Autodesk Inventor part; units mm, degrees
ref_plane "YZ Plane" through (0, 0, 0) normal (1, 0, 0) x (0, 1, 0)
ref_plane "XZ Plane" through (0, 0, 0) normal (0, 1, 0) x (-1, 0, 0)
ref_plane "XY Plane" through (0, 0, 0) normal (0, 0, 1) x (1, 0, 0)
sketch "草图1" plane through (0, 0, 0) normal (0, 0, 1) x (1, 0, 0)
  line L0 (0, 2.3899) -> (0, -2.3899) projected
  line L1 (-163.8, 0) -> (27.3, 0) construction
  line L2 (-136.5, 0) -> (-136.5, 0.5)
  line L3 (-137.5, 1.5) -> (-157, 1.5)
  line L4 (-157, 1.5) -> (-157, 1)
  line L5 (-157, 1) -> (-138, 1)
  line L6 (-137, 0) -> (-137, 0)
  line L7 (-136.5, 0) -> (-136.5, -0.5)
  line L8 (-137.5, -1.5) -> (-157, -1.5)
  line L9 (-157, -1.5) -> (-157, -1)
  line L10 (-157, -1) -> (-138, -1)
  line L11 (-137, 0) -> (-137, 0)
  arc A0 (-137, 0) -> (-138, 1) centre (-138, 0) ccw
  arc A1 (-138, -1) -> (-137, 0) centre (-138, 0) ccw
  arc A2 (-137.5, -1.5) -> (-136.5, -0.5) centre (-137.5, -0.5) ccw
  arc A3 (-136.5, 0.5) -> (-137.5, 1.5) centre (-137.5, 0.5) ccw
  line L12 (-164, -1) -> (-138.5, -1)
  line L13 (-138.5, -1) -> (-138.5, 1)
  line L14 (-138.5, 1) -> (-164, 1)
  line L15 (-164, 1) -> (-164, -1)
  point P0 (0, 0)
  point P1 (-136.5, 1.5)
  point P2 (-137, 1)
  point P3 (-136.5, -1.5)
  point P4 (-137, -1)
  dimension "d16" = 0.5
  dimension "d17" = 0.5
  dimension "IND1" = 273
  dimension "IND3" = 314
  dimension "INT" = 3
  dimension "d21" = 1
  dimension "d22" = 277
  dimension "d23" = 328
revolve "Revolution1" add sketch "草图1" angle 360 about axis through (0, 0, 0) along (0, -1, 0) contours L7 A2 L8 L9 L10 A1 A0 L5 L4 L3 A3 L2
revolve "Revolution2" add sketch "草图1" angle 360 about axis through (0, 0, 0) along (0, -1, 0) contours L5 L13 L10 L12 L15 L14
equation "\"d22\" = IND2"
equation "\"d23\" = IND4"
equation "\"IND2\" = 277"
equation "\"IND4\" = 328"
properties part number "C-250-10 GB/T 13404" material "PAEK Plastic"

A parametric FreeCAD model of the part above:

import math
import FreeCAD as App
import Part
import Sketcher
from FreeCAD import Vector
Q = App.Units.Quantity

doc = App.newDocument("Part")
body = doc.addObject("PartDesign::Body", "Body")

# Sketch on XY plane
sketch1 = doc.addObject("Sketcher::SketchObject", "Sketch")
body.addObject(sketch1)
sketch1.AttachmentSupport = (doc.XY_Plane, [""])
sketch1.MapMode = "FlatFace"
sketch1.addGeometry([
    Part.LineSegment(Vector(-136.5, -0.5, 0), Vector(-136.5, 0.5, 0)),  # 0
    Part.ArcOfCircle(Part.Circle(Vector(-137.5, 0.5, 0), Vector(0, 0, 1), 1), math.radians(0), math.radians(90)),  # 1
    Part.LineSegment(Vector(-137.5, 1.5, 0), Vector(-157, 1.5, 0)),  # 2
    Part.LineSegment(Vector(-157, 1.5, 0), Vector(-157, 1, 0)),  # 3
    Part.LineSegment(Vector(-157, 1, 0), Vector(-138, 1, 0)),  # 4
    Part.ArcOfCircle(Part.Circle(Vector(-138, 0, 0), Vector(0, 0, 1), 1), math.radians(-90), math.radians(90)),  # 5
    Part.LineSegment(Vector(-138, -1, 0), Vector(-157, -1, 0)),  # 6
    Part.LineSegment(Vector(-157, -1, 0), Vector(-157, -1.5, 0)),  # 7
    Part.LineSegment(Vector(-157, -1.5, 0), Vector(-137.5, -1.5, 0)),  # 8
    Part.ArcOfCircle(Part.Circle(Vector(-137.5, -0.5, 0), Vector(0, 0, 1), 1), math.radians(-90), math.radians(0)),  # 9
], False)
sketch1.addConstraint([
    Sketcher.Constraint("Tangent", 0, 2, 1, 1),
    Sketcher.Constraint("Tangent", 1, 2, 2, 1),
    Sketcher.Constraint("Coincident", 2, 2, 3, 1),
    Sketcher.Constraint("Coincident", 3, 2, 4, 1),
    Sketcher.Constraint("Tangent", 4, 2, 5, 2),
    Sketcher.Constraint("Tangent", 5, 1, 6, 1),
    Sketcher.Constraint("Coincident", 6, 2, 7, 1),
    Sketcher.Constraint("Coincident", 7, 2, 8, 1),
    Sketcher.Constraint("Tangent", 8, 2, 9, 1),
    Sketcher.Constraint("Tangent", 9, 2, 0, 1),
    Sketcher.Constraint("Vertical", 0),
    Sketcher.Constraint("Horizontal", 2),
    Sketcher.Constraint("Vertical", 3),
    Sketcher.Constraint("Horizontal", 4),
    Sketcher.Constraint("Horizontal", 6),
    Sketcher.Constraint("Vertical", 7),
    Sketcher.Constraint("Horizontal", 8),
    Sketcher.Constraint("Equal", 1, 5),
    Sketcher.Constraint("Equal", 5, 9),
    Sketcher.Constraint("Symmetric", 3, 2, 6, 2, -1),
    Sketcher.Constraint("Equal", 3, 7),
    Sketcher.Constraint("Radius", 1, Q("1 mm")),
    Sketcher.Constraint("DistanceY", 0, 1, 0, 2, Q("1 mm")),
    Sketcher.Constraint("DistanceX", 5, 3, 1, 3, Q("0.5 mm")),
    Sketcher.Constraint("DistanceX", 4, 1, 4, 2, Q("19 mm")),
    Sketcher.Constraint("DistanceX", 5, 3, -1, 1, Q("138 mm")),
])
revolution = doc.addObject("PartDesign::Revolution", "Revolution")
body.addObject(revolution)
revolution.Profile = sketch1
revolution.ReferenceAxis = (sketch1, ["V_Axis"])
revolution.Angle = 360

# Sketch on XY plane
sketch2 = doc.addObject("Sketcher::SketchObject", "Sketch001")
body.addObject(sketch2)
sketch2.AttachmentSupport = (doc.XY_Plane, [""])
sketch2.MapMode = "FlatFace"
sketch2.addGeometry([
    Part.LineSegment(Vector(-138.5, 1, 0), Vector(-164, 1, 0)),
    Part.LineSegment(Vector(-164, 1, 0), Vector(-164, -1, 0)),
    Part.LineSegment(Vector(-164, -1, 0), Vector(-138.5, -1, 0)),
    Part.LineSegment(Vector(-138.5, -1, 0), Vector(-138.5, 1, 0)),
], False)
sketch2.addConstraint([
    Sketcher.Constraint("Coincident", 0, 2, 1, 1),
    Sketcher.Constraint("Coincident", 1, 2, 2, 1),
    Sketcher.Constraint("Coincident", 2, 2, 3, 1),
    Sketcher.Constraint("Coincident", 3, 2, 0, 1),
    Sketcher.Constraint("Horizontal", 0),
    Sketcher.Constraint("Vertical", 1),
    Sketcher.Constraint("Horizontal", 2),
    Sketcher.Constraint("Vertical", 3),
    Sketcher.Constraint("DistanceY", -1, 1, 0, 2, Q("1 mm")),
    Sketcher.Constraint("DistanceY", 1, 2, -1, 1, Q("1 mm")),
    Sketcher.Constraint("DistanceX", 0, 2, 0, 1, Q("25.5 mm")),
    Sketcher.Constraint("DistanceX", 0, 2, -1, 1, Q("164 mm")),
])
revolution2 = doc.addObject("PartDesign::Revolution", "Revolution001")
body.addObject(revolution2)
revolution2.Profile = sketch2
revolution2.ReferenceAxis = (sketch2, ["V_Axis"])
revolution2.Angle = 360

doc.recompute()
